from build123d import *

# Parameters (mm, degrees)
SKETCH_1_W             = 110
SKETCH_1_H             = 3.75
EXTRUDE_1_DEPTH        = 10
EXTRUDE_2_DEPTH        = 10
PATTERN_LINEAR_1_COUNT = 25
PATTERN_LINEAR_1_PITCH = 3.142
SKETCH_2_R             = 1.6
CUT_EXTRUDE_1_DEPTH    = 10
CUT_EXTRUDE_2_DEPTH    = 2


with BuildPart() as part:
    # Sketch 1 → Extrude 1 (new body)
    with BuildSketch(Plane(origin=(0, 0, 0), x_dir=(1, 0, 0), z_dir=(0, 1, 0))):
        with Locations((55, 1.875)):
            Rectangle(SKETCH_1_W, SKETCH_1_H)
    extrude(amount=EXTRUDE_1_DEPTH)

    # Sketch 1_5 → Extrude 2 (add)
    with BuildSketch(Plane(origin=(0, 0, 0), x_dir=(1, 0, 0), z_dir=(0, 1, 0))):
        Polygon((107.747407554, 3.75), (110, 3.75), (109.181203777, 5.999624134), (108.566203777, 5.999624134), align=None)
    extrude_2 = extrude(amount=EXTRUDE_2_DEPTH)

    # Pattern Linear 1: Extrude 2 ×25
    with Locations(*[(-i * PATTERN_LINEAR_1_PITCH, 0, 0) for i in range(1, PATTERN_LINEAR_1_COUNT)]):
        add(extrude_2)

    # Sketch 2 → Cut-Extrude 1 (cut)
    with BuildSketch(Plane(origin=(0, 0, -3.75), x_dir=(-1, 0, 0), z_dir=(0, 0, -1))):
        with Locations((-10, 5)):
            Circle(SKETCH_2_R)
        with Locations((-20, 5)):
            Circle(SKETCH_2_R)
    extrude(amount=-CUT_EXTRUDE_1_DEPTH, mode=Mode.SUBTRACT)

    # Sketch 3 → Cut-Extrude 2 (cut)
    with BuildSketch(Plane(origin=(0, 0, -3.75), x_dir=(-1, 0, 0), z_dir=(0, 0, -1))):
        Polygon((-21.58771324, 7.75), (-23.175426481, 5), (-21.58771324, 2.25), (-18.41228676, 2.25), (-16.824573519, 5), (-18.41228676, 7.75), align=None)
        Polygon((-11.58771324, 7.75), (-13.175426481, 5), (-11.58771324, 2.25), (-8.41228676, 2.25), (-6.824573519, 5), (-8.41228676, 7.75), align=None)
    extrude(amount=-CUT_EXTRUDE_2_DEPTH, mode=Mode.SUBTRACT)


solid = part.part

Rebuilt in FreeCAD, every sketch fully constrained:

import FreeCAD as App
import Part
import Sketcher
Q = App.Units.Quantity


def add_polygon(sketch, points):
    """Adds a closed chain of lines whose ends are joined by coincident constraints."""
    first, n = sketch.GeometryCount, len(points)
    for a, b in zip(points, points[1:] + points[:1]):
        sketch.addGeometry(Part.LineSegment(App.Vector(*a, 0), App.Vector(*b, 0)), False)
    for i in range(n):
        sketch.addConstraint(Sketcher.Constraint("Coincident", first + i, 2, first + (i + 1) % n, 1))

doc = App.newDocument("Part")
params = doc.addObject("Spreadsheet::Sheet", "Params")
for row, (alias, value) in enumerate([
    ("sketch1_width", "110 mm"),
    ("sketch1_height", "3.75 mm"),
    ("pad1_length", "10 mm"),
    ("pad2_length", "10 mm"),
    ("linearpattern_pitch", "3.142 mm"),
    ("sketch3_diameter", "3.2 mm"),
    ("pocket1_length", "10 mm"),
    ("pocket2_length", "2 mm"),
], start=1):
    params.set(f"A{row}", alias)
    params.set(f"B{row}", "=" + value)
    params.setAlias(f"B{row}", alias)

body = doc.addObject("PartDesign::Body", "Body")

# Sketch on XZ plane
sketch1 = doc.addObject("Sketcher::SketchObject", "Sketch")
body.addObject(sketch1)
sketch1.AttachmentSupport = (doc.XZ_Plane, [""])
sketch1.MapMode = "FlatFace"
add_polygon(sketch1, [(0, -3.8), (0, 0), (110, 0), (110, -3.8)])  # lines 0-3
sketch1.addConstraint(Sketcher.Constraint("Vertical", 0))
sketch1.addConstraint(Sketcher.Constraint("Horizontal", 1))
sketch1.addConstraint(Sketcher.Constraint("Vertical", 2))
sketch1.addConstraint(Sketcher.Constraint("Horizontal", 3))
sketch1.addConstraint(Sketcher.Constraint("Coincident", 0, 2, -1, 1))
sketch1.addConstraint(Sketcher.Constraint("DistanceX", 1, 1, 1, 2, Q("110 mm")))
sketch1.addConstraint(Sketcher.Constraint("DistanceY", 0, 1, 0, 2, Q("3.75 mm")))
sketch1.setExpression("Constraints[9]", "Params.sketch1_width")
sketch1.setExpression("Constraints[10]", "Params.sketch1_height")
pad1 = doc.addObject("PartDesign::Pad", "Pad")
body.addObject(pad1)
pad1.Profile = sketch1
pad1.setExpression("Length", "Params.pad1_length")
pad1.Reversed = True

# Sketch on XZ plane
sketch2 = doc.addObject("Sketcher::SketchObject", "Sketch001")
body.addObject(sketch2)
sketch2.AttachmentSupport = (doc.XZ_Plane, [""])
sketch2.MapMode = "FlatFace"
add_polygon(sketch2, [(107.7, -3.8), (110, -3.8), (109.2, -6), (108.6, -6)])  # lines 0-3
sketch2.addConstraint(Sketcher.Constraint("Horizontal", 0))
sketch2.addConstraint(Sketcher.Constraint("Horizontal", 2))
sketch2.addConstraint(Sketcher.Constraint("Equal", 1, 3))
sketch2.addConstraint(Sketcher.Constraint("Angle", 1, Q("-110 deg")))
sketch2.addConstraint(Sketcher.Constraint("DistanceX", -1, 1, 0, 2, Q("110 mm")))
sketch2.addConstraint(Sketcher.Constraint("DistanceX", 2, 2, 2, 1, Q("0.615 mm")))
sketch2.addConstraint(Sketcher.Constraint("DistanceY", 0, 2, -1, 1, Q("3.75 mm")))
sketch2.addConstraint(Sketcher.Constraint("Distance", 1, Q("2.394 mm")))
pad2 = doc.addObject("PartDesign::Pad", "Pad001")
body.addObject(pad2)
pad2.Profile = sketch2
pad2.setExpression("Length", "Params.pad2_length")
pad2.Reversed = True
doc.recompute()

linearpattern = doc.addObject("PartDesign::LinearPattern", "LinearPattern")
body.addObject(linearpattern)
linearpattern.Originals = [pad2]
linearpattern.Direction = (doc.X_Axis, [""])
linearpattern.Mode = "offset"
linearpattern.setExpression("Offset", "Params.linearpattern_pitch")
linearpattern.Occurrences = 25
linearpattern.Reversed = True
body.Tip = linearpattern

# Sketch on XY plane
sketch3 = doc.addObject("Sketcher::SketchObject", "Sketch002")
body.addObject(sketch3)
sketch3.AttachmentSupport = (doc.XY_Plane, [""])
sketch3.MapMode = "FlatFace"
sketch3.AttachmentOffset = App.Placement(App.Vector(0, 0, -3.75), App.Rotation())
sketch3.addGeometry(Part.Circle(App.Vector(10, 5, 0), App.Vector(0, 0, 1), 1.6), False)
sketch3.addGeometry(Part.Circle(App.Vector(20, 5, 0), App.Vector(0, 0, 1), 1.6), False)
sketch3.addConstraint(Sketcher.Constraint("Equal", 0, 1))
sketch3.addConstraint(Sketcher.Constraint("Horizontal", 0, 3, 1, 3))
sketch3.addConstraint(Sketcher.Constraint("Diameter", 0, Q("3.2 mm")))
sketch3.addConstraint(Sketcher.Constraint("DistanceX", -1, 1, 0, 3, Q("10 mm")))
sketch3.addConstraint(Sketcher.Constraint("DistanceY", -1, 1, 0, 3, Q("5 mm")))
sketch3.addConstraint(Sketcher.Constraint("DistanceX", -1, 1, 1, 3, Q("20 mm")))
sketch3.setExpression("Constraints[2]", "Params.sketch3_diameter")
pocket1 = doc.addObject("PartDesign::Pocket", "Pocket")
body.addObject(pocket1)
pocket1.Profile = sketch3
pocket1.setExpression("Length", "Params.pocket1_length")
pocket1.Reversed = True

# Sketch on XY plane
sketch4 = doc.addObject("Sketcher::SketchObject", "Sketch003")
body.addObject(sketch4)
sketch4.AttachmentSupport = (doc.XY_Plane, [""])
sketch4.MapMode = "FlatFace"
sketch4.AttachmentOffset = App.Placement(App.Vector(0, 0, -3.75), App.Rotation())
add_polygon(sketch4, [(21.6, 7.8), (23.2, 5), (21.6, 2.2), (18.4, 2.2), (16.8, 5), (18.4, 7.8)])  # lines 0-5
add_polygon(sketch4, [(11.6, 7.8), (13.2, 5), (11.6, 2.2), (8.4, 2.2), (6.8, 5), (8.4, 7.8)])  # lines 6-11
sketch4.addConstraint(Sketcher.Constraint("Horizontal", 2))
sketch4.addConstraint(Sketcher.Constraint("Horizontal", 5))
sketch4.addConstraint(Sketcher.Constraint("Horizontal", 8))
sketch4.addConstraint(Sketcher.Constraint("Horizontal", 11))
sketch4.addConstraint(Sketcher.Constraint("Parallel", 0, 3))
sketch4.addConstraint(Sketcher.Constraint("Parallel", 1, 4))
sketch4.addConstraint(Sketcher.Constraint("Parallel", 3, 6))
sketch4.addConstraint(Sketcher.Constraint("Parallel", 4, 7))
sketch4.addConstraint(Sketcher.Constraint("Parallel", 6, 9))
sketch4.addConstraint(Sketcher.Constraint("Parallel", 7, 10))
sketch4.addConstraint(Sketcher.Constraint("Horizontal", 0, 2, 3, 2))
sketch4.addConstraint(Sketcher.Constraint("Horizontal", 3, 2, 6, 2))
sketch4.addConstraint(Sketcher.Constraint("Horizontal", 2, 2, 7, 2))
sketch4.addConstraint(Sketcher.Constraint("Horizontal", 6, 2, 9, 2))
sketch4.addConstraint(Sketcher.Constraint("Horizontal", 5, 2, 10, 2))
sketch4.addConstraint(Sketcher.Constraint("Vertical", 2, 2, 4, 2))
sketch4.addConstraint(Sketcher.Constraint("Vertical", 1, 2, 5, 2))
sketch4.addConstraint(Sketcher.Constraint("Equal", 5, 8))
sketch4.addConstraint(Sketcher.Constraint("Angle", 0, Q("-60 deg")))
sketch4.addConstraint(Sketcher.Constraint("DistanceY", -1, 1, 0, 2, Q("5 mm")))
sketch4.addConstraint(Sketcher.Constraint("DistanceX", 7, 2, 1, 2, Q("10 mm")))
sketch4.addConstraint(Sketcher.Constraint("DistanceY", 2, 2, 4, 2, Q("5.5 mm")))
sketch4.addConstraint(Sketcher.Constraint("DistanceX", 2, 2, 2, 1, Q("3.175426 mm")))
sketch4.addConstraint(Sketcher.Constraint("DistanceX", -1, 1, 0, 2, Q("23.175426 mm")))
pocket2 = doc.addObject("PartDesign::Pocket", "Pocket001")
body.addObject(pocket2)
pocket2.Profile = sketch4
pocket2.setExpression("Length", "Params.pocket2_length")
pocket2.Reversed = True

doc.recompute()
